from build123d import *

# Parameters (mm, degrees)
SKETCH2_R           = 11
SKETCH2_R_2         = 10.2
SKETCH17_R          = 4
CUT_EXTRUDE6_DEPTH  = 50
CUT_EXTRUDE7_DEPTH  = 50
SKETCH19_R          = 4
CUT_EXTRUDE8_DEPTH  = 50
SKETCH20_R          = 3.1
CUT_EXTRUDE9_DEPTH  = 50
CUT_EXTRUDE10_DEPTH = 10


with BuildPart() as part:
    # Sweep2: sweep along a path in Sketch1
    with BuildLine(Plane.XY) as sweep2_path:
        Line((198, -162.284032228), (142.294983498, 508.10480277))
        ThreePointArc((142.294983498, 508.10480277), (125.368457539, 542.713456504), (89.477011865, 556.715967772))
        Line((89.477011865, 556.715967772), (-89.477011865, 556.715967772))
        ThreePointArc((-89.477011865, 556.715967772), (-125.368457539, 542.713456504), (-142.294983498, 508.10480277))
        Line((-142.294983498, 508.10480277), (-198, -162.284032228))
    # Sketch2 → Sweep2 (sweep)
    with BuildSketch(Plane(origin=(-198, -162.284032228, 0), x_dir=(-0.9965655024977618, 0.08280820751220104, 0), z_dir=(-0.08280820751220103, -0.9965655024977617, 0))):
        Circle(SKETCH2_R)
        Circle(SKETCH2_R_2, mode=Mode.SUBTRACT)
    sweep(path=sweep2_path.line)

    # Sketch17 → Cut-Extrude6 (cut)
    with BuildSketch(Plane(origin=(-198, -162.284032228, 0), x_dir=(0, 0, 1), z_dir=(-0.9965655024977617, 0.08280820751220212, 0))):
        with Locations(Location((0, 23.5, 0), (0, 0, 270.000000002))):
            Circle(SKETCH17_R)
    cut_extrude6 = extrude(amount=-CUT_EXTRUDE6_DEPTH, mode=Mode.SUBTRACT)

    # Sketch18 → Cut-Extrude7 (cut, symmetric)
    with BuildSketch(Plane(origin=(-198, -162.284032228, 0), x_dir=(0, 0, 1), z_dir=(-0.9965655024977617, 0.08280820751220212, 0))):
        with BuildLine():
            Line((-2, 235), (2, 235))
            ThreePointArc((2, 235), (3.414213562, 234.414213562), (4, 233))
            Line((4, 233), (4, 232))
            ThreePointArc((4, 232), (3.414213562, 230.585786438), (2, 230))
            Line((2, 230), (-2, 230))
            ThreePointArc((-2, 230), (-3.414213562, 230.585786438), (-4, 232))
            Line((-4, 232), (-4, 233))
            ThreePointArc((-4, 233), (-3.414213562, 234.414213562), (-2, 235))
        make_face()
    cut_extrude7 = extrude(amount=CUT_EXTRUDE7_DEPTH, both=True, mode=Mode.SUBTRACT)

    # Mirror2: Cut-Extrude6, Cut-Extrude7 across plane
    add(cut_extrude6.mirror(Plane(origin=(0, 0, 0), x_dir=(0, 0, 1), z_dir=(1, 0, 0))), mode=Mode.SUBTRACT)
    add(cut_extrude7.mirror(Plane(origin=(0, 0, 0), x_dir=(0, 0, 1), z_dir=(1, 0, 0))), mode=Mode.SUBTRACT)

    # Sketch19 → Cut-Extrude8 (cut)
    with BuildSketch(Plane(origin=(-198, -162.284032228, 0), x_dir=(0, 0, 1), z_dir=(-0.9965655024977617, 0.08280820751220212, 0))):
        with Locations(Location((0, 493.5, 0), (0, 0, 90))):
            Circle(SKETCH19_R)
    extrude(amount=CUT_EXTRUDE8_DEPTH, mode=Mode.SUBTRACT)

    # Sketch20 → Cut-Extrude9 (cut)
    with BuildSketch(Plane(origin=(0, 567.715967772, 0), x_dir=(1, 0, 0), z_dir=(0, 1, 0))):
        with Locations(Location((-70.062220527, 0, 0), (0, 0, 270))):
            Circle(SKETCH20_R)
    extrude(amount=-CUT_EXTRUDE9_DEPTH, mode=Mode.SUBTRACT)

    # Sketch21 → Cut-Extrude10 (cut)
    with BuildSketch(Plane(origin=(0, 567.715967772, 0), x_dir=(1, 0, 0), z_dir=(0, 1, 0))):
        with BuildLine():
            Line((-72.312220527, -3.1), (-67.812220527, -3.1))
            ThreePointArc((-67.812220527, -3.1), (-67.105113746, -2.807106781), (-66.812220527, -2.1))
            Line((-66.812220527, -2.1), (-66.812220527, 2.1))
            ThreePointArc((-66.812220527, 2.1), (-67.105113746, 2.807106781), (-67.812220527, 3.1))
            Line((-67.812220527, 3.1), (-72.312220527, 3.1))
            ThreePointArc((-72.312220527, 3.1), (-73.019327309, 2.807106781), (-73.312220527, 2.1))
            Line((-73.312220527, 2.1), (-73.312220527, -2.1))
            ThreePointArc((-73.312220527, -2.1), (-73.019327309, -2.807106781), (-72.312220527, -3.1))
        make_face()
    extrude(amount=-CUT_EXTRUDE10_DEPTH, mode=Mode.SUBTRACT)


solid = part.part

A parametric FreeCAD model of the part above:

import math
import FreeCAD as App
import Part
import Sketcher
Q = App.Units.Quantity

doc = App.newDocument("Part")
body = doc.addObject("PartDesign::Body", "Body")

# Sketch on an angled plane
sketch1 = body.newObject("Sketcher::SketchObject", "Sketch")
sketch1.Placement = App.Placement(App.Vector(-198, -162.284032, 0), App.Rotation(App.Vector(-0.996565502, 0.082808208, 0), App.Vector(0, 0, -0.999999999), App.Vector(-0.082808208, -0.996565502, 0), "ZXY"))
sketch1.addGeometry([
    Part.Circle(App.Vector(0, 0, 0), App.Vector(0, 0, 1), 11),
    Part.Circle(App.Vector(0, 0, 0), App.Vector(0, 0, 1), 10),
], False)
sketch1.addConstraint([
    Sketcher.Constraint("Coincident", 0, 3, -1, 1),
    Sketcher.Constraint("Coincident", 1, 3, -1, 1),
    Sketcher.Constraint("Diameter", 0, 22.0),
    Sketcher.Constraint("Diameter", 1, 20.4),
])

# Sketch on XY plane
sketch2 = body.newObject("Sketcher::SketchObject", "Sketch001")
sketch2.AttachmentSupport = (doc.getObject("XY_Plane"), [""])
sketch2.MapMode = "FlatFace"
sketch2.addGeometry([
    Part.LineSegment(App.Vector(198, -162, 0), App.Vector(142, 508, 0)),  # 0
    Part.ArcOfCircle(Part.Circle(App.Vector(89, 504, 0), App.Vector(0, 0, 1), 53), math.radians(5), math.radians(90)),  # 1
    Part.LineSegment(App.Vector(89, 557, 0), App.Vector(-89, 557, 0)),  # 2
    Part.ArcOfCircle(Part.Circle(App.Vector(-89, 504, 0), App.Vector(0, 0, 1), 53), math.radians(90), math.radians(175)),  # 3
    Part.LineSegment(App.Vector(-142, 508, 0), App.Vector(-198, -162, 0)),  # 4
], False)
sketch2.addConstraint([
    Sketcher.Constraint("Tangent", 0, 2, 1, 1),
    Sketcher.Constraint("Tangent", 1, 2, 2, 1),
    Sketcher.Constraint("Tangent", 2, 2, 3, 1),
    Sketcher.Constraint("Tangent", 3, 2, 4, 1),
    Sketcher.Constraint("Horizontal", 2),
    Sketcher.Constraint("Equal", 1, 3),
    Sketcher.Constraint("Symmetric", 0, 2, 3, 2, -2),
    Sketcher.Constraint("Horizontal", 0, 1, 4, 2),
    Sketcher.Constraint("Radius", 1, 53.0),
    Sketcher.Constraint("DistanceX", -1, 1, 0, 1, 198.0),
    Sketcher.Constraint("DistanceY", 0, 1, 1, 3, 666.0),
    Sketcher.Constraint("Angle", 0, Q("94.75 deg")),
    Sketcher.Constraint("DistanceY", -1, 1, 1, 3, 503.715968),
])
doc.recompute()

additivepipe = body.newObject("PartDesign::AdditivePipe", "AdditivePipe")
additivepipe.Profile = sketch1
additivepipe.Spine = (sketch2, ["Edge1", "Edge2", "Edge3", "Edge4", "Edge5"])

# Sketch on an angled plane
sketch3 = body.newObject("Sketcher::SketchObject", "Sketch002")
sketch3.Placement = App.Placement(App.Vector(-198, -162.284032, 0), App.Rotation(App.Vector(0, 0, 1), App.Vector(0.082808208, 0.996565502, 0), App.Vector(-0.996565502, 0.082808208, 0), "ZXY"))
sketch3.addGeometry(Part.Circle(App.Vector(0, 23.5, 0), App.Vector(0, 0, 1), 4), False)
sketch3.addConstraint([
    Sketcher.Constraint("PointOnObject", 0, 3, -2),
    Sketcher.Constraint("Diameter", 0, 8.0),
    Sketcher.Constraint("DistanceY", -1, 1, 0, 3, 23.5),
])
pocket1 = body.newObject("PartDesign::Pocket", "Pocket")
pocket1.Profile = sketch3
pocket1.Length = 50

# Sketch on an angled plane
sketch4 = body.newObject("Sketcher::SketchObject", "Sketch003")
sketch4.Placement = App.Placement(App.Vector(-198, -162.284032, 0), App.Rotation(App.Vector(0, 0, 1), App.Vector(0.082808208, 0.996565502, 0), App.Vector(-0.996565502, 0.082808208, 0), "ZXY"))
sketch4.addGeometry([
    Part.LineSegment(App.Vector(2, 235, 0), App.Vector(-2, 235, 0)),  # 0
    Part.ArcOfCircle(Part.Circle(App.Vector(-2, 233, 0), App.Vector(0, 0, 1), 2), math.radians(90), math.radians(180)),  # 1
    Part.LineSegment(App.Vector(-4, 233, 0), App.Vector(-4, 232, 0)),  # 2
    Part.ArcOfCircle(Part.Circle(App.Vector(-2, 232, 0), App.Vector(0, 0, 1), 2), math.radians(-180), math.radians(-90)),  # 3
    Part.LineSegment(App.Vector(-2, 230, 0), App.Vector(2, 230, 0)),  # 4
    Part.ArcOfCircle(Part.Circle(App.Vector(2, 232, 0), App.Vector(0, 0, 1), 2), math.radians(-90), math.radians(0)),  # 5
    Part.LineSegment(App.Vector(4, 232, 0), App.Vector(4, 233, 0)),  # 6
    Part.ArcOfCircle(Part.Circle(App.Vector(2, 233, 0), App.Vector(0, 0, 1), 2), math.radians(0), math.radians(90)),  # 7
], False)
sketch4.addConstraint([
    Sketcher.Constraint("Tangent", 0, 2, 1, 1),
    Sketcher.Constraint("Tangent", 1, 2, 2, 1),
    Sketcher.Constraint("Tangent", 2, 2, 3, 1),
    Sketcher.Constraint("Tangent", 3, 2, 4, 1),
    Sketcher.Constraint("Tangent", 4, 2, 5, 1),
    Sketcher.Constraint("Tangent", 5, 2, 6, 1),
    Sketcher.Constraint("Tangent", 6, 2, 7, 1),
    Sketcher.Constraint("Tangent", 7, 2, 0, 1),
    Sketcher.Constraint("Horizontal", 0),
    Sketcher.Constraint("Vertical", 2),
    Sketcher.Constraint("Horizontal", 4),
    Sketcher.Constraint("Vertical", 6),
    Sketcher.Constraint("Equal", 1, 3),
    Sketcher.Constraint("Equal", 3, 5),
    Sketcher.Constraint("Equal", 5, 7),
    Sketcher.Constraint("Radius", 1, 2.0),
    Sketcher.Constraint("DistanceX", 0, 2, 0, 1, 4.0),
    Sketcher.Constraint("DistanceY", 2, 2, 2, 1, 1.0),
    Sketcher.Constraint("DistanceX", 1, 3, -1, 1, 2.0),
    Sketcher.Constraint("DistanceY", -1, 1, 1, 3, 233.0),
])
pocket2 = body.newObject("PartDesign::Pocket", "Pocket001")
pocket2.Profile = sketch4
pocket2.Length = 100
pocket2.Midplane = True
doc.recompute()

mirrored = body.newObject("PartDesign::Mirrored", "Mirrored")
mirrored.Originals = [pocket1, pocket2]
mirrored.MirrorPlane = (doc.getObject("YZ_Plane"), [""])
body.Tip = mirrored

# Sketch on an angled plane
sketch5 = body.newObject("Sketcher::SketchObject", "Sketch004")
sketch5.Placement = App.Placement(App.Vector(-198, -162.284032, 0), App.Rotation(App.Vector(0, 0, 1), App.Vector(0.082808208, 0.996565502, 0), App.Vector(-0.996565502, 0.082808208, 0), "ZXY"))
sketch5.addGeometry(Part.Circle(App.Vector(0, 493.5, 0), App.Vector(0, 0, 1), 4), False)
sketch5.addConstraint([
    Sketcher.Constraint("PointOnObject", 0, 3, -2),
    Sketcher.Constraint("Diameter", 0, 8.0),
    Sketcher.Constraint("DistanceY", -1, 1, 0, 3, 493.5),
])
pocket3 = body.newObject("PartDesign::Pocket", "Pocket002")
pocket3.Profile = sketch5
pocket3.Length = 50
pocket3.Reversed = True

# Sketch on XZ plane
sketch6 = body.newObject("Sketcher::SketchObject", "Sketch005")
sketch6.AttachmentSupport = (doc.getObject("XZ_Plane"), [""])
sketch6.MapMode = "FlatFace"
sketch6.AttachmentOffset = App.Placement(App.Vector(0, 0, -567.715968), App.Rotation())
sketch6.addGeometry(Part.Circle(App.Vector(-70.1, 0, 0), App.Vector(0, 0, 1), 3.1), False)
sketch6.addConstraint([
    Sketcher.Constraint("PointOnObject", 0, 3, -1),
    Sketcher.Constraint("Diameter", 0, 6.2),
    Sketcher.Constraint("DistanceX", 0, 3, -1, 1, 70.062221),
])
pocket4 = body.newObject("PartDesign::Pocket", "Pocket003")
pocket4.Profile = sketch6
pocket4.Length = 50
pocket4.Reversed = True

# Sketch on XZ plane
sketch7 = body.newObject("Sketcher::SketchObject", "Sketch006")
sketch7.AttachmentSupport = (doc.getObject("XZ_Plane"), [""])
sketch7.MapMode = "FlatFace"
sketch7.AttachmentOffset = App.Placement(App.Vector(0, 0, -567.715968), App.Rotation())
sketch7.addGeometry([
    Part.LineSegment(App.Vector(-72.3, 3.1, 0), App.Vector(-67.8, 3.1, 0)),  # 0
    Part.ArcOfCircle(Part.Circle(App.Vector(-67.8, 2.1, 0), App.Vector(0, 0, 1), 1), math.radians(0), math.radians(90)),  # 1
    Part.LineSegment(App.Vector(-66.8, 2.1, 0), App.Vector(-66.8, -2.1, 0)),  # 2
    Part.ArcOfCircle(Part.Circle(App.Vector(-67.8, -2.1, 0), App.Vector(0, 0, 1), 1), math.radians(-90), math.radians(0)),  # 3
    Part.LineSegment(App.Vector(-67.8, -3.1, 0), App.Vector(-72.3, -3.1, 0)),  # 4
    Part.ArcOfCircle(Part.Circle(App.Vector(-72.3, -2.1, 0), App.Vector(0, 0, 1), 1), math.radians(180), math.radians(270)),  # 5
    Part.LineSegment(App.Vector(-73.3, -2.1, 0), App.Vector(-73.3, 2.1, 0)),  # 6
    Part.ArcOfCircle(Part.Circle(App.Vector(-72.3, 2.1, 0), App.Vector(0, 0, 1), 1), math.radians(90), math.radians(180)),  # 7
], False)
sketch7.addConstraint([
    Sketcher.Constraint("Tangent", 0, 2, 1, 2),
    Sketcher.Constraint("Tangent", 1, 1, 2, 1),
    Sketcher.Constraint("Tangent", 2, 2, 3, 2),
    Sketcher.Constraint("Tangent", 3, 1, 4, 1),
    Sketcher.Constraint("Tangent", 4, 2, 5, 2),
    Sketcher.Constraint("Tangent", 5, 1, 6, 1),
    Sketcher.Constraint("Tangent", 6, 2, 7, 2),
    Sketcher.Constraint("Tangent", 7, 1, 0, 1),
    Sketcher.Constraint("Horizontal", 0),
    Sketcher.Constraint("Vertical", 2),
    Sketcher.Constraint("Horizontal", 4),
    Sketcher.Constraint("Vertical", 6),
    Sketcher.Constraint("Equal", 1, 3),
    Sketcher.Constraint("Equal", 3, 5),
    Sketcher.Constraint("Equal", 5, 7),
    Sketcher.Constraint("Radius", 1, 1.0),
    Sketcher.Constraint("DistanceX", 0, 1, 0, 2, 4.5),
    Sketcher.Constraint("DistanceY", 2, 2, 2, 1, 4.2),
    Sketcher.Constraint("DistanceY", -1, 1, 1, 3, 2.1),
    Sketcher.Constraint("DistanceX", 1, 3, -1, 1, 67.812221),
])
pocket5 = body.newObject("PartDesign::Pocket", "Pocket004")
pocket5.Profile = sketch7
pocket5.Length = 10
pocket5.Reversed = True

doc.recompute()
